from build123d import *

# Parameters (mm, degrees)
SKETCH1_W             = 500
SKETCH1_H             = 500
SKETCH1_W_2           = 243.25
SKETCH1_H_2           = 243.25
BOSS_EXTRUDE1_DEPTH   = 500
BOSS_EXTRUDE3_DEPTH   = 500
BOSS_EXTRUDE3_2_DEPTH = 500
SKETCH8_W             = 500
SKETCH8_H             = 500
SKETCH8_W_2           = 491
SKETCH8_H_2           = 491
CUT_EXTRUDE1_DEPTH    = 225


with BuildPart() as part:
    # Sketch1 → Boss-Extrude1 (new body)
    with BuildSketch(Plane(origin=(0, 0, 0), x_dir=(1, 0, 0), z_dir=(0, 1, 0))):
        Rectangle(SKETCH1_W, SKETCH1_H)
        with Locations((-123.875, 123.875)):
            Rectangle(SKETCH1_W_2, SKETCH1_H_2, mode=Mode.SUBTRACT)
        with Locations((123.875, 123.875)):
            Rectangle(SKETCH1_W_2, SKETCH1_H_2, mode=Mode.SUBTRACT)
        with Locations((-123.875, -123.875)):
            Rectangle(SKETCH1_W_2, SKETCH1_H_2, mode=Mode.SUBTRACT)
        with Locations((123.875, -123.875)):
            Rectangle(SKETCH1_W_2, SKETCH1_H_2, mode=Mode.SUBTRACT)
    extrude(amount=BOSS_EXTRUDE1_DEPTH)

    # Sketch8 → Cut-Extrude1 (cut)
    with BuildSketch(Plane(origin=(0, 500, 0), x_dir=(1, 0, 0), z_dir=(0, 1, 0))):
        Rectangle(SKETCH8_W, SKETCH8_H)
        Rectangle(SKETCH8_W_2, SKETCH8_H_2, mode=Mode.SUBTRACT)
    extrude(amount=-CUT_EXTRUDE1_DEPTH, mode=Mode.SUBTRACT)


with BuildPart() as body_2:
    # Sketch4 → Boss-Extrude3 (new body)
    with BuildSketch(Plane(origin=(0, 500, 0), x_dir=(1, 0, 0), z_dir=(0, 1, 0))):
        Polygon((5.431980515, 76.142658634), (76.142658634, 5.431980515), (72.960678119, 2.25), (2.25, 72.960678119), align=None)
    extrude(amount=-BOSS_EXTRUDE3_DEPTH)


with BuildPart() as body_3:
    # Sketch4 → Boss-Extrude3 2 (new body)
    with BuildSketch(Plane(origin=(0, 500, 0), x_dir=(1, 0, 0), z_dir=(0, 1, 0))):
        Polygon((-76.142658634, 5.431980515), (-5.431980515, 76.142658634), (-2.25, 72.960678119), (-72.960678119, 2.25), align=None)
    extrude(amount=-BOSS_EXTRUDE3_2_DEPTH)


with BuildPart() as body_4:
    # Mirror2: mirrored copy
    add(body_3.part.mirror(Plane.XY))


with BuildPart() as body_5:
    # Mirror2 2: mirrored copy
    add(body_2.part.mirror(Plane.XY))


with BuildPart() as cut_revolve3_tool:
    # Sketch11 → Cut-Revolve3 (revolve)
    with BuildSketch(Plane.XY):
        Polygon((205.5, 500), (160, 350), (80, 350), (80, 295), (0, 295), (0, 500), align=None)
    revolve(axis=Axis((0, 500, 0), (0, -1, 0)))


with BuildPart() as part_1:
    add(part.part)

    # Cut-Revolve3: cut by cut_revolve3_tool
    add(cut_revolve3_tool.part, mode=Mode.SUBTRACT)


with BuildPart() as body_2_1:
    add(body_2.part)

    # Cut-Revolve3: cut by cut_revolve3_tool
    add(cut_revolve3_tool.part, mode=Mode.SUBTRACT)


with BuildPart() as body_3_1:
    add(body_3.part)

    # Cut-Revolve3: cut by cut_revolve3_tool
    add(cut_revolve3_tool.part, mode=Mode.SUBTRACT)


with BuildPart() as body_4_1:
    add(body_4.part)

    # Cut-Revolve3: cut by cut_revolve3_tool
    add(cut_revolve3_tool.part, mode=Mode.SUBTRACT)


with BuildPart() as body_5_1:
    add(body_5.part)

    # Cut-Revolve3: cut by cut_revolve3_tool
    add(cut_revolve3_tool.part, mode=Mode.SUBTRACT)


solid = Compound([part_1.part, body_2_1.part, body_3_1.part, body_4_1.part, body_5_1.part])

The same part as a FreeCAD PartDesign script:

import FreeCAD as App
import Part
import Sketcher

V = App.Vector
Q = App.Units.Quantity

doc = App.newDocument("Part")
body = doc.addObject("PartDesign::Body", "Body")

sketch1 = body.newObject("Sketcher::SketchObject", "Sketch")
sketch1.AttachmentSupport = (doc.getObject("XZ_Plane"), [""])
sketch1.MapMode = "FlatFace"
sketch1.addGeometry(Part.LineSegment(V(-250, -250, 0), V(-250, 250, 0)), False)
sketch1.addGeometry(Part.LineSegment(V(-250, 250, 0), V(250, 250, 0)), False)
sketch1.addGeometry(Part.LineSegment(V(250, 250, 0), V(250, -250, 0)), False)
sketch1.addGeometry(Part.LineSegment(V(250, -250, 0), V(-250, -250, 0)), False)
sketch1.addGeometry(Part.LineSegment(V(-2, 246, 0), V(-246, 246, 0)), False)
sketch1.addGeometry(Part.LineSegment(V(-246, 246, 0), V(-246, 2, 0)), False)
sketch1.addGeometry(Part.LineSegment(V(-246, 2, 0), V(-2, 2, 0)), False)
sketch1.addGeometry(Part.LineSegment(V(-2, 2, 0), V(-2, 246, 0)), False)
sketch1.addGeometry(Part.LineSegment(V(246, 246, 0), V(2, 246, 0)), False)
sketch1.addGeometry(Part.LineSegment(V(2, 246, 0), V(2, 2, 0)), False)
sketch1.addGeometry(Part.LineSegment(V(2, 2, 0), V(246, 2, 0)), False)
sketch1.addGeometry(Part.LineSegment(V(246, 2, 0), V(246, 246, 0)), False)
sketch1.addGeometry(Part.LineSegment(V(-2, -2, 0), V(-246, -2, 0)), False)
sketch1.addGeometry(Part.LineSegment(V(-246, -2, 0), V(-246, -246, 0)), False)
sketch1.addGeometry(Part.LineSegment(V(-246, -246, 0), V(-2, -246, 0)), False)
sketch1.addGeometry(Part.LineSegment(V(-2, -246, 0), V(-2, -2, 0)), False)
sketch1.addGeometry(Part.LineSegment(V(246, -2, 0), V(2, -2, 0)), False)
sketch1.addGeometry(Part.LineSegment(V(2, -2, 0), V(2, -246, 0)), False)
sketch1.addGeometry(Part.LineSegment(V(2, -246, 0), V(246, -246, 0)), False)
sketch1.addGeometry(Part.LineSegment(V(246, -246, 0), V(246, -2, 0)), False)
sketch1.addConstraint(Sketcher.Constraint("Coincident", 0, 2, 1, 1))
sketch1.addConstraint(Sketcher.Constraint("Coincident", 1, 2, 2, 1))
sketch1.addConstraint(Sketcher.Constraint("Coincident", 2, 2, 3, 1))
sketch1.addConstraint(Sketcher.Constraint("Coincident", 3, 2, 0, 1))
sketch1.addConstraint(Sketcher.Constraint("Coincident", 4, 2, 5, 1))
sketch1.addConstraint(Sketcher.Constraint("Coincident", 5, 2, 6, 1))
sketch1.addConstraint(Sketcher.Constraint("Coincident", 6, 2, 7, 1))
sketch1.addConstraint(Sketcher.Constraint("Coincident", 7, 2, 4, 1))
sketch1.addConstraint(Sketcher.Constraint("Coincident", 8, 2, 9, 1))
sketch1.addConstraint(Sketcher.Constraint("Coincident", 9, 2, 10, 1))
sketch1.addConstraint(Sketcher.Constraint("Coincident", 10, 2, 11, 1))
sketch1.addConstraint(Sketcher.Constraint("Coincident", 11, 2, 8, 1))
sketch1.addConstraint(Sketcher.Constraint("Coincident", 12, 2, 13, 1))
sketch1.addConstraint(Sketcher.Constraint("Coincident", 13, 2, 14, 1))
sketch1.addConstraint(Sketcher.Constraint("Coincident", 14, 2, 15, 1))
sketch1.addConstraint(Sketcher.Constraint("Coincident", 15, 2, 12, 1))
sketch1.addConstraint(Sketcher.Constraint("Coincident", 16, 2, 17, 1))
sketch1.addConstraint(Sketcher.Constraint("Coincident", 17, 2, 18, 1))
sketch1.addConstraint(Sketcher.Constraint("Coincident", 18, 2, 19, 1))
sketch1.addConstraint(Sketcher.Constraint("Coincident", 19, 2, 16, 1))
sketch1.addConstraint(Sketcher.Constraint("Vertical", 0))
sketch1.addConstraint(Sketcher.Constraint("Horizontal", 1))
sketch1.addConstraint(Sketcher.Constraint("Vertical", 2))
sketch1.addConstraint(Sketcher.Constraint("Horizontal", 3))
sketch1.addConstraint(Sketcher.Constraint("Horizontal", 4))
sketch1.addConstraint(Sketcher.Constraint("Vertical", 5))
sketch1.addConstraint(Sketcher.Constraint("Horizontal", 6))
sketch1.addConstraint(Sketcher.Constraint("Vertical", 7))
sketch1.addConstraint(Sketcher.Constraint("Horizontal", 8))
sketch1.addConstraint(Sketcher.Constraint("Vertical", 9))
sketch1.addConstraint(Sketcher.Constraint("Horizontal", 10))
sketch1.addConstraint(Sketcher.Constraint("Vertical", 11))
sketch1.addConstraint(Sketcher.Constraint("Horizontal", 12))
sketch1.addConstraint(Sketcher.Constraint("Vertical", 13))
sketch1.addConstraint(Sketcher.Constraint("Horizontal", 14))
sketch1.addConstraint(Sketcher.Constraint("Vertical", 15))
sketch1.addConstraint(Sketcher.Constraint("Horizontal", 16))
sketch1.addConstraint(Sketcher.Constraint("Vertical", 17))
sketch1.addConstraint(Sketcher.Constraint("Horizontal", 18))
sketch1.addConstraint(Sketcher.Constraint("Vertical", 19))
sketch1.addConstraint(Sketcher.Constraint("Symmetric", 0, 2, 2, 2, -1, 1))
sketch1.addConstraint(Sketcher.Constraint("Symmetric", 10, 2, 12, 2, -1, 1))
sketch1.addConstraint(Sketcher.Constraint("Symmetric", 8, 2, 14, 2, -1, 1))
sketch1.addConstraint(Sketcher.Constraint("Symmetric", 6, 2, 16, 2, -1, 1))
sketch1.addConstraint(Sketcher.Constraint("Symmetric", 4, 2, 18, 2, -1, 1))
sketch1.addConstraint(Sketcher.Constraint("Symmetric", 7, 2, 8, 2, -2))
sketch1.addConstraint(Sketcher.Constraint("Symmetric", 5, 2, 10, 2, -2))
sketch1.addConstraint(Sketcher.Constraint("Equal", 3, 0))
sketch1.addConstraint(Sketcher.Constraint("Equal", 18, 5))
sketch1.addConstraint(Sketcher.Constraint("DistanceX", 1, 1, 1, 2, 500.0))
sketch1.addConstraint(Sketcher.Constraint("DistanceX", 4, 2, 4, 1, 243.25))
sketch1.addConstraint(Sketcher.Constraint("DistanceX", 4, 2, -1, 1, 245.5))
sketch1.addConstraint(Sketcher.Constraint("DistanceY", -1, 1, 4, 2, 245.5))
pad1 = body.newObject("PartDesign::Pad", "Pad")
pad1.Profile = sketch1
pad1.Length = 500
pad1.Reversed = True

sketch2 = body.newObject("Sketcher::SketchObject", "Sketch001")
sketch2.AttachmentSupport = (doc.getObject("XZ_Plane"), [""])
sketch2.MapMode = "FlatFace"
sketch2.AttachmentOffset = App.Placement(V(0, 0, -500), App.Rotation())
sketch2.addGeometry(Part.LineSegment(V(-250, -250, 0), V(-250, 250, 0)), False)
sketch2.addGeometry(Part.LineSegment(V(-250, 250, 0), V(250, 250, 0)), False)
sketch2.addGeometry(Part.LineSegment(V(250, 250, 0), V(250, -250, 0)), False)
sketch2.addGeometry(Part.LineSegment(V(250, -250, 0), V(-250, -250, 0)), False)
sketch2.addGeometry(Part.LineSegment(V(246, 246, 0), V(-246, 246, 0)), False)
sketch2.addGeometry(Part.LineSegment(V(-246, 246, 0), V(-246, -246, 0)), False)
sketch2.addGeometry(Part.LineSegment(V(-246, -246, 0), V(246, -246, 0)), False)
sketch2.addGeometry(Part.LineSegment(V(246, -246, 0), V(246, 246, 0)), False)
sketch2.addConstraint(Sketcher.Constraint("Coincident", 0, 2, 1, 1))
sketch2.addConstraint(Sketcher.Constraint("Coincident", 1, 2, 2, 1))
sketch2.addConstraint(Sketcher.Constraint("Coincident", 2, 2, 3, 1))
sketch2.addConstraint(Sketcher.Constraint("Coincident", 3, 2, 0, 1))
sketch2.addConstraint(Sketcher.Constraint("Coincident", 4, 2, 5, 1))
sketch2.addConstraint(Sketcher.Constraint("Coincident", 5, 2, 6, 1))
sketch2.addConstraint(Sketcher.Constraint("Coincident", 6, 2, 7, 1))
sketch2.addConstraint(Sketcher.Constraint("Coincident", 7, 2, 4, 1))
sketch2.addConstraint(Sketcher.Constraint("Vertical", 0))
sketch2.addConstraint(Sketcher.Constraint("Horizontal", 1))
sketch2.addConstraint(Sketcher.Constraint("Vertical", 2))
sketch2.addConstraint(Sketcher.Constraint("Horizontal", 3))
sketch2.addConstraint(Sketcher.Constraint("Horizontal", 4))
sketch2.addConstraint(Sketcher.Constraint("Vertical", 5))
sketch2.addConstraint(Sketcher.Constraint("Horizontal", 6))
sketch2.addConstraint(Sketcher.Constraint("Vertical", 7))
sketch2.addConstraint(Sketcher.Constraint("Symmetric", 0, 2, 2, 2, -1, 1))
sketch2.addConstraint(Sketcher.Constraint("Symmetric", 4, 2, 6, 2, -1, 1))
sketch2.addConstraint(Sketcher.Constraint("Equal", 3, 0))
sketch2.addConstraint(Sketcher.Constraint("Equal", 6, 5))
sketch2.addConstraint(Sketcher.Constraint("DistanceX", 1, 1, 1, 2, 500.0))
sketch2.addConstraint(Sketcher.Constraint("DistanceX", 4, 2, 4, 1, 491.0))
pocket1 = body.newObject("PartDesign::Pocket", "Pocket")
pocket1.Profile = sketch2
pocket1.Length = 225
pocket1.Reversed = True
body2 = doc.addObject("PartDesign::Body", "Body001")

sketch3 = body2.newObject("Sketcher::SketchObject", "Sketch002")
sketch3.AttachmentSupport = (doc.getObject("XZ_Plane001"), [""])
sketch3.MapMode = "FlatFace"
sketch3.AttachmentOffset = App.Placement(V(0, 0, -500), App.Rotation())
sketch3.addGeometry(Part.LineSegment(V(76.1, -5.4, 0), V(5.4, -76.1, 0)), False)
sketch3.addGeometry(Part.LineSegment(V(5.4, -76.1, 0), V(2.2, -73, 0)), False)
sketch3.addGeometry(Part.LineSegment(V(2.2, -73, 0), V(73, -2.2, 0)), False)
sketch3.addGeometry(Part.LineSegment(V(73, -2.2, 0), V(76.1, -5.4, 0)), False)
sketch3.addConstraint(Sketcher.Constraint("Coincident", 0, 2, 1, 1))
sketch3.addConstraint(Sketcher.Constraint("Coincident", 1, 2, 2, 1))
sketch3.addConstraint(Sketcher.Constraint("Coincident", 2, 2, 3, 1))
sketch3.addConstraint(Sketcher.Constraint("Coincident", 3, 2, 0, 1))
sketch3.addConstraint(Sketcher.Constraint("Perpendicular", 0, 1))
sketch3.addConstraint(Sketcher.Constraint("Perpendicular", 1, 2))
sketch3.addConstraint(Sketcher.Constraint("Perpendicular", 2, 3))
sketch3.addConstraint(Sketcher.Constraint("Angle", 0, Q("-135 deg")))
sketch3.addConstraint(Sketcher.Constraint("Distance", 0, 100.0))
sketch3.addConstraint(Sketcher.Constraint("Distance", 1, 4.5))
sketch3.addConstraint(Sketcher.Constraint("DistanceX", -1, 1, 1, 2, 2.25))
sketch3.addConstraint(Sketcher.Constraint("DistanceY", 2, 2, -1, 1, 2.25))
pad2 = body2.newObject("PartDesign::Pad", "Pad001")
pad2.Profile = sketch3
pad2.Length = 500
body3 = doc.addObject("PartDesign::Body", "Body002")

sketch4 = body3.newObject("Sketcher::SketchObject", "Sketch003")
sketch4.AttachmentSupport = (doc.getObject("XZ_Plane002"), [""])
sketch4.MapMode = "FlatFace"
sketch4.AttachmentOffset = App.Placement(V(0, 0, -500), App.Rotation())
sketch4.addGeometry(Part.LineSegment(V(-5.4, -76.1, 0), V(-76.1, -5.4, 0)), False)
sketch4.addGeometry(Part.LineSegment(V(-76.1, -5.4, 0), V(-73, -2.2, 0)), False)
sketch4.addGeometry(Part.LineSegment(V(-73, -2.2, 0), V(-2.2, -73, 0)), False)
sketch4.addGeometry(Part.LineSegment(V(-2.2, -73, 0), V(-5.4, -76.1, 0)), False)
sketch4.addConstraint(Sketcher.Constraint("Coincident", 0, 2, 1, 1))
sketch4.addConstraint(Sketcher.Constraint("Coincident", 1, 2, 2, 1))
sketch4.addConstraint(Sketcher.Constraint("Coincident", 2, 2, 3, 1))
sketch4.addConstraint(Sketcher.Constraint("Coincident", 3, 2, 0, 1))
sketch4.addConstraint(Sketcher.Constraint("Perpendicular", 0, 1))
sketch4.addConstraint(Sketcher.Constraint("Perpendicular", 1, 2))
sketch4.addConstraint(Sketcher.Constraint("Perpendicular", 2, 3))
sketch4.addConstraint(Sketcher.Constraint("Angle", 0, Q("135 deg")))
sketch4.addConstraint(Sketcher.Constraint("Distance", 0, 100.0))
sketch4.addConstraint(Sketcher.Constraint("Distance", 1, 4.5))
sketch4.addConstraint(Sketcher.Constraint("DistanceY", 1, 2, -1, 1, 2.25))
sketch4.addConstraint(Sketcher.Constraint("DistanceX", 2, 2, -1, 1, 2.25))
pad3 = body3.newObject("PartDesign::Pad", "Pad002")
pad3.Profile = sketch4
pad3.Length = 500
body4 = doc.addObject("PartDesign::Body", "Body003")
doc.recompute()

mirroring = doc.addObject("Part::Mirroring", "Mirroring")
mirroring.Source = body3
mirroring.Base = V(0, 0, 0)
mirroring.Normal = V(0, 0, 1)
body4.BaseFeature = mirroring
doc.recompute()
body5 = doc.addObject("PartDesign::Body", "Body004")
doc.recompute()

mirroring2 = doc.addObject("Part::Mirroring", "Mirroring001")
mirroring2.Source = body2
mirroring2.Base = V(0, 0, 0)
mirroring2.Normal = V(0, 0, 1)
body5.BaseFeature = mirroring2
doc.recompute()
body6 = doc.addObject("PartDesign::Body", "Body005")

sketch5 = body6.newObject("Sketcher::SketchObject", "Sketch004")
sketch5.AttachmentSupport = (doc.getObject("XY_Plane005"), [""])
sketch5.MapMode = "FlatFace"
sketch5.addGeometry(Part.LineSegment(V(160, 350, 0), V(206, 500, 0)), False)
sketch5.addGeometry(Part.LineSegment(V(206, 500, 0), V(0, 500, 0)), False)
sketch5.addGeometry(Part.LineSegment(V(0, 500, 0), V(0, 295, 0)), False)
sketch5.addGeometry(Part.LineSegment(V(0, 295, 0), V(80, 295, 0)), False)
sketch5.addGeometry(Part.LineSegment(V(80, 295, 0), V(80, 350, 0)), False)
sketch5.addGeometry(Part.LineSegment(V(80, 350, 0), V(160, 350, 0)), False)
sketch5.addConstraint(Sketcher.Constraint("Coincident", 0, 2, 1, 1))
sketch5.addConstraint(Sketcher.Constraint("Coincident", 1, 2, 2, 1))
sketch5.addConstraint(Sketcher.Constraint("Coincident", 2, 2, 3, 1))
sketch5.addConstraint(Sketcher.Constraint("Coincident", 3, 2, 4, 1))
sketch5.addConstraint(Sketcher.Constraint("Coincident", 4, 2, 5, 1))
sketch5.addConstraint(Sketcher.Constraint("Coincident", 5, 2, 0, 1))
sketch5.addConstraint(Sketcher.Constraint("Horizontal", 1))
sketch5.addConstraint(Sketcher.Constraint("Vertical", 2))
sketch5.addConstraint(Sketcher.Constraint("Horizontal", 3))
sketch5.addConstraint(Sketcher.Constraint("Vertical", 4))
sketch5.addConstraint(Sketcher.Constraint("Horizontal", 5))
sketch5.addConstraint(Sketcher.Constraint("PointOnObject", 1, 2, -2))
sketch5.addConstraint(Sketcher.Constraint("Equal", 3, 5))
sketch5.addConstraint(Sketcher.Constraint("DistanceX", 3, 1, 3, 2, 80.0))
sketch5.addConstraint(Sketcher.Constraint("DistanceY", 2, 2, 2, 1, 205.0))
sketch5.addConstraint(Sketcher.Constraint("DistanceY", 4, 1, 4, 2, 55.0))
sketch5.addConstraint(Sketcher.Constraint("DistanceX", 1, 2, 1, 1, 205.5))
sketch5.addConstraint(Sketcher.Constraint("DistanceY", -1, 1, 0, 2, 500.0))
revolution = body6.newObject("PartDesign::Revolution", "Revolution")
revolution.Profile = sketch5
revolution.ReferenceAxis = (sketch5, ["V_Axis"])
revolution.Angle = 360
doc.recompute()

body7 = doc.addObject("PartDesign::Body", "Body006")
body7.BaseFeature = body6
boolean = body.newObject("PartDesign::Boolean", "Boolean")
boolean.Type = "Cut"
boolean.addObjects([body7])
doc.recompute()

body8 = doc.addObject("PartDesign::Body", "Body007")
body8.BaseFeature = body6
boolean2 = body2.newObject("PartDesign::Boolean", "Boolean001")
boolean2.Type = "Cut"
boolean2.addObjects([body8])
doc.recompute()

body9 = doc.addObject("PartDesign::Body", "Body008")
body9.BaseFeature = body6
boolean3 = body3.newObject("PartDesign::Boolean", "Boolean002")
boolean3.Type = "Cut"
boolean3.addObjects([body9])
doc.recompute()

body10 = doc.addObject("PartDesign::Body", "Body009")
body10.BaseFeature = body6
boolean4 = body4.newObject("PartDesign::Boolean", "Boolean003")
boolean4.Type = "Cut"
boolean4.addObjects([body10])
doc.recompute()

boolean5 = body5.newObject("PartDesign::Boolean", "Boolean004")
boolean5.Type = "Cut"
boolean5.addObjects([body6])
mirroring.Visibility = False
mirroring2.Visibility = False

doc.recompute()
